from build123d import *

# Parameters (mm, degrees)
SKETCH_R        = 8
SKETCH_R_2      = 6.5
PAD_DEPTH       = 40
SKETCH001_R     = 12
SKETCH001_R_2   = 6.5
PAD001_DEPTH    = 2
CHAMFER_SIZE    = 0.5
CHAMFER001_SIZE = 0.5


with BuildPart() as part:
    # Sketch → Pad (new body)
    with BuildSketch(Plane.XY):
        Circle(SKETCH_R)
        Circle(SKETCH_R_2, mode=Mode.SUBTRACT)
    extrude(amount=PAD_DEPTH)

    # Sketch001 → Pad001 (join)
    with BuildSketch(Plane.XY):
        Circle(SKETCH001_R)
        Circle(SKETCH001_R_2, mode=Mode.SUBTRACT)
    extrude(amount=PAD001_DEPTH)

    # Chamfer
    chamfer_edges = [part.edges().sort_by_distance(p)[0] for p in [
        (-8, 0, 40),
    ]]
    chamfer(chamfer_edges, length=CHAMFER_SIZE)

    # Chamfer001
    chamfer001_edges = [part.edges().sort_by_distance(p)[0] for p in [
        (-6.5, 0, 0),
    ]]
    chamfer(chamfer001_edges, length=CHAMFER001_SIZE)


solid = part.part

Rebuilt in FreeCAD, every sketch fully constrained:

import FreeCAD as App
import Part
import Sketcher


def edges_at(feature, points):
    """Names of the edges that pass closest to the given points."""
    edges = feature.Shape.Edges
    near = lambda p: min(range(len(edges)), key=lambda i: edges[i].distToShape(Part.Vertex(*p))[0])
    return sorted({f"Edge{near(p) + 1}" for p in points})

doc = App.newDocument("Part")
body = doc.addObject("PartDesign::Body", "Body")

# Sketch on XY plane
sketch1 = body.newObject("Sketcher::SketchObject", "Sketch")
sketch1.AttachmentSupport = (doc.getObject("XY_Plane"), [""])
sketch1.MapMode = "FlatFace"
sketch1.addGeometry(Part.Circle(App.Vector(0, 0, 0), App.Vector(0, 0, 1), 8), False)
sketch1.addGeometry(Part.Circle(App.Vector(0, 0, 0), App.Vector(0, 0, 1), 6), False)
sketch1.addConstraint(Sketcher.Constraint("Coincident", 0, 3, -1, 1))
sketch1.addConstraint(Sketcher.Constraint("Coincident", 1, 3, -1, 1))
sketch1.addConstraint(Sketcher.Constraint("Diameter", 0, 16.0))
sketch1.addConstraint(Sketcher.Constraint("Diameter", 1, 13.0))
pad1 = body.newObject("PartDesign::Pad", "Pad")
pad1.Profile = sketch1
pad1.Length = 40

# Sketch on XY plane
sketch2 = body.newObject("Sketcher::SketchObject", "Sketch001")
sketch2.AttachmentSupport = (doc.getObject("XY_Plane"), [""])
sketch2.MapMode = "FlatFace"
sketch2.addGeometry(Part.Circle(App.Vector(0, 0, 0), App.Vector(0, 0, 1), 12), False)
sketch2.addGeometry(Part.Circle(App.Vector(0, 0, 0), App.Vector(0, 0, 1), 6), False)
sketch2.addConstraint(Sketcher.Constraint("Coincident", 0, 3, -1, 1))
sketch2.addConstraint(Sketcher.Constraint("Coincident", 1, 3, -1, 1))
sketch2.addConstraint(Sketcher.Constraint("Diameter", 0, 24.0))
sketch2.addConstraint(Sketcher.Constraint("Diameter", 1, 13.0))
pad2 = body.newObject("PartDesign::Pad", "Pad001")
pad2.Profile = sketch2
pad2.Length = 2
doc.recompute()

chamfer = body.newObject("PartDesign::Chamfer", "Chamfer")
chamfer.Base = (pad2, edges_at(pad2, [(-8, 0, 40)]))
chamfer.Size = 0.5
doc.recompute()

chamfer2 = body.newObject("PartDesign::Chamfer", "Chamfer001")
chamfer2.Base = (chamfer, edges_at(chamfer, [(-6.5, 0, 0)]))
chamfer2.Size = 0.5

doc.recompute()
